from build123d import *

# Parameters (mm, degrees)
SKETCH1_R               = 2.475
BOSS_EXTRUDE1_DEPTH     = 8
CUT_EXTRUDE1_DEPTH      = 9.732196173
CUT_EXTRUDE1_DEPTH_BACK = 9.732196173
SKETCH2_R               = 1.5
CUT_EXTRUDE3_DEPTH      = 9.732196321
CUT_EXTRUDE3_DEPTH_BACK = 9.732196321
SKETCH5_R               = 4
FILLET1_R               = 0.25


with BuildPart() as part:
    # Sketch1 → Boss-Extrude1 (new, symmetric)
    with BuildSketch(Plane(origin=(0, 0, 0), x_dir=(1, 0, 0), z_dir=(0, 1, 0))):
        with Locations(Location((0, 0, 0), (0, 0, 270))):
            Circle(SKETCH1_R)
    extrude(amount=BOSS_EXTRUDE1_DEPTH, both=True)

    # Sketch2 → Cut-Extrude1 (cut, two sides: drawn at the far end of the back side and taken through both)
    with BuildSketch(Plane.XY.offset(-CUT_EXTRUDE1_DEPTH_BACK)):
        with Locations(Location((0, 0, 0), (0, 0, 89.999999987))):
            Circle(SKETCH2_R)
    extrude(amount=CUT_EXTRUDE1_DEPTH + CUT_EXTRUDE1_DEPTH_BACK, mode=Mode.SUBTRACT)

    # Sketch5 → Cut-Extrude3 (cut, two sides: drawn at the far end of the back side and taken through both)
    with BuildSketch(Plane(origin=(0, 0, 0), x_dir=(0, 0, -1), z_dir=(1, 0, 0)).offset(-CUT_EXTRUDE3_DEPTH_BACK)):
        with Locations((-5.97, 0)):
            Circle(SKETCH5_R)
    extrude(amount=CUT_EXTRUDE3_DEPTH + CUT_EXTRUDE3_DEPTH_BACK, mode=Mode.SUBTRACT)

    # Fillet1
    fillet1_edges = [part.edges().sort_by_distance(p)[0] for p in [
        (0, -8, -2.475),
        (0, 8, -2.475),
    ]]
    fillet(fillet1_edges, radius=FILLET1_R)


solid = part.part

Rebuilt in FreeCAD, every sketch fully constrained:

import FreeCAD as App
import Part
import Sketcher
from FreeCAD import Vector
Q = App.Units.Quantity


def edges_at(feature, points):
    """Names of the edges that pass closest to the given points."""
    edges = feature.Shape.Edges
    near = lambda p: min(range(len(edges)), key=lambda i: edges[i].distToShape(Part.Vertex(*p))[0])
    return sorted({f"Edge{near(p) + 1}" for p in points})

doc = App.newDocument("Part")
body = doc.addObject("PartDesign::Body", "Body")

# Sketch on XZ plane
sketch1 = body.newObject("Sketcher::SketchObject", "Sketch")
sketch1.AttachmentSupport = (doc.getObject("XZ_Plane"), [""])
sketch1.MapMode = "FlatFace"
sketch1.addGeometry(Part.Circle(Vector(0, 0, 0), Vector(0, 0, 1), 2.5), False)
sketch1.addConstraint([
    Sketcher.Constraint("Coincident", 0, 3, -1, 1),
    Sketcher.Constraint("Diameter", 0, Q("4.95 mm")),
])
pad1 = body.newObject("PartDesign::Pad", "Pad")
pad1.Profile = sketch1
pad1.Length = 16
pad1.Midplane = True

# Sketch on XY plane
sketch2 = body.newObject("Sketcher::SketchObject", "Sketch001")
sketch2.AttachmentSupport = (doc.getObject("XY_Plane"), [""])
sketch2.MapMode = "FlatFace"
sketch2.addGeometry(Part.Circle(Vector(0, 0, 0), Vector(0, 0, 1), 1.5), False)
sketch2.addConstraint([
    Sketcher.Constraint("Coincident", 0, 3, -1, 1),
    Sketcher.Constraint("Diameter", 0, Q("3 mm")),
])
pocket1 = body.newObject("PartDesign::Pocket", "Pocket")
pocket1.Profile = sketch2
pocket1.Type = "ThroughAll"
pocket1.Midplane = True

# Sketch on YZ plane
sketch3 = body.newObject("Sketcher::SketchObject", "Sketch002")
sketch3.AttachmentSupport = (doc.getObject("YZ_Plane"), [""])
sketch3.MapMode = "FlatFace"
sketch3.addGeometry(Part.Circle(Vector(0, 6, 0), Vector(0, 0, 1), 4), False)
sketch3.addConstraint([
    Sketcher.Constraint("PointOnObject", 0, 3, -2),
    Sketcher.Constraint("Diameter", 0, Q("8 mm")),
    Sketcher.Constraint("DistanceY", -1, 1, 0, 3, Q("5.97 mm")),
])
pocket2 = body.newObject("PartDesign::Pocket", "Pocket001")
pocket2.Profile = sketch3
pocket2.Type = "ThroughAll"
pocket2.Midplane = True
doc.recompute()

fillet = body.newObject("PartDesign::Fillet", "Fillet")
fillet.Base = (pocket2, edges_at(pocket2, [(0, -8, -2.475), (0, 8, -2.475)]))
fillet.Radius = 0.25

doc.recompute()
